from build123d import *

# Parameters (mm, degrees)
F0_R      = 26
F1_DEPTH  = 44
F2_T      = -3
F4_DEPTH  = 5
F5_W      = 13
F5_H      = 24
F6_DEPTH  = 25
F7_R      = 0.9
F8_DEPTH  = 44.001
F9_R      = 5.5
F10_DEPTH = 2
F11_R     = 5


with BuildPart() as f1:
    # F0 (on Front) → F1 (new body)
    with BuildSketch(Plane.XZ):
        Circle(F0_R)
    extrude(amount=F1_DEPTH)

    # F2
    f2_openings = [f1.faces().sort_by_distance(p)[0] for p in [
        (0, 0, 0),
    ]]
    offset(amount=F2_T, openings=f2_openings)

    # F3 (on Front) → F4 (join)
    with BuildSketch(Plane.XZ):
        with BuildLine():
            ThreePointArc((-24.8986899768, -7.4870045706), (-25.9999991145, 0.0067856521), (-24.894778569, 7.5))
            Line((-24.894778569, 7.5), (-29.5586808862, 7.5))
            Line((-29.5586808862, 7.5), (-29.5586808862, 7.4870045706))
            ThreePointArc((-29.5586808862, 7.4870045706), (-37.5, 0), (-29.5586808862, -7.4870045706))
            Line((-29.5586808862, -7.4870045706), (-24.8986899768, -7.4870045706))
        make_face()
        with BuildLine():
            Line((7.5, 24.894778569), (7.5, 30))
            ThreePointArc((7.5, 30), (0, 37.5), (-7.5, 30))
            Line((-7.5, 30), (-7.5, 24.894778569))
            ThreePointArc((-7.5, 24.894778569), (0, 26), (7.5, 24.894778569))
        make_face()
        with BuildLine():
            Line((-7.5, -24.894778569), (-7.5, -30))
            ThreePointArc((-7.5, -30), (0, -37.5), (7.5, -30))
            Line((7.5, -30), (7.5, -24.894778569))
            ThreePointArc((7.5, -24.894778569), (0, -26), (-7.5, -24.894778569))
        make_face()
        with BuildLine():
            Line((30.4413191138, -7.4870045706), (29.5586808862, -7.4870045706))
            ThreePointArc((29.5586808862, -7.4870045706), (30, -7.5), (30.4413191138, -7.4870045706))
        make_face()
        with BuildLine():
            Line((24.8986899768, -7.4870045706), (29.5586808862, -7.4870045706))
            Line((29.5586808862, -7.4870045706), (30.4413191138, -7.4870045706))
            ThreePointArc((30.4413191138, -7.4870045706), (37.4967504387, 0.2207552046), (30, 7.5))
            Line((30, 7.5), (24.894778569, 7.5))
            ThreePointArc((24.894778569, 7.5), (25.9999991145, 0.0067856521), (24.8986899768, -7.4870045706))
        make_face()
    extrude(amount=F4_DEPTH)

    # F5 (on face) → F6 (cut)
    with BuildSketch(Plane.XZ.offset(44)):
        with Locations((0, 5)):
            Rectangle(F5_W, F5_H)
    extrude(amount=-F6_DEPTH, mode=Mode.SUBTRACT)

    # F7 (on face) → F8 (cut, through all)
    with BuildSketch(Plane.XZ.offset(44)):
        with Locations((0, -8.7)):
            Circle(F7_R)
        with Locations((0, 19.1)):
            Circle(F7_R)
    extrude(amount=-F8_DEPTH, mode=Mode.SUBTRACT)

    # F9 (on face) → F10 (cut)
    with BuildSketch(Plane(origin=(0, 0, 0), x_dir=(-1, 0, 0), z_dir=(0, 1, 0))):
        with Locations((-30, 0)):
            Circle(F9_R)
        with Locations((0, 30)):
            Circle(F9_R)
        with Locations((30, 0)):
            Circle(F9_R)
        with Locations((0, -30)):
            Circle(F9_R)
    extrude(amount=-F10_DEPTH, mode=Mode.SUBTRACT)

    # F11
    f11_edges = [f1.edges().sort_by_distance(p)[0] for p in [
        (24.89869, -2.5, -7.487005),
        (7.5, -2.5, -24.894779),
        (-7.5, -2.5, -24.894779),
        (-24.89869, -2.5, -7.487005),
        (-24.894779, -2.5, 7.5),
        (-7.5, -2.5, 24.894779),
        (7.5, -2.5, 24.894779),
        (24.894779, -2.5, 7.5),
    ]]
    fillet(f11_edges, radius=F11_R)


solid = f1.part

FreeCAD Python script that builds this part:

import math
import FreeCAD as App
import Part
import Sketcher
from FreeCAD import Vector
Q = App.Units.Quantity


def edges_at(feature, points):
    """Names of the edges that pass closest to the given points."""
    edges = feature.Shape.Edges
    near = lambda p: min(range(len(edges)), key=lambda i: edges[i].distToShape(Part.Vertex(*p))[0])
    return sorted({f"Edge{near(p) + 1}" for p in points})


def faces_at(feature, points):
    """Names of the faces that lie closest to the given points."""
    faces = feature.Shape.Faces
    near = lambda p: min(range(len(faces)), key=lambda i: faces[i].distToShape(Part.Vertex(*p))[0])
    return sorted({f"Face{near(p) + 1}" for p in points})

doc = App.newDocument("Part")
body = doc.addObject("PartDesign::Body", "Body")

# Sketch on XZ plane
sketch1 = body.newObject("Sketcher::SketchObject", "Sketch")
sketch1.AttachmentSupport = (doc.getObject("XZ_Plane"), [""])
sketch1.MapMode = "FlatFace"
sketch1.addGeometry(Part.Circle(Vector(0, 0, 0), Vector(0, 0, 1), 26), False)
sketch1.addConstraint([
    Sketcher.Constraint("Coincident", 0, 3, -1, 1),
    Sketcher.Constraint("Diameter", 0, Q("52 mm")),
])
pad1 = body.newObject("PartDesign::Pad", "Pad")
pad1.Profile = sketch1
pad1.Length = 44
doc.recompute()

thickness = body.newObject("PartDesign::Thickness", "Thickness")
thickness.Base = (pad1, faces_at(pad1, [(0, 0, 0)]))
thickness.Value = 3
thickness.Reversed = True
thickness.Join = "Arc"

# Sketch on XZ plane
sketch2 = body.newObject("Sketcher::SketchObject", "Sketch001")
sketch2.AttachmentSupport = (doc.getObject("XZ_Plane"), [""])
sketch2.MapMode = "FlatFace"
sketch2.addGeometry([
    Part.ArcOfCircle(Part.Circle(Vector(0, 0, 0), Vector(0, 0, 1), 26), math.radians(163.234127), math.radians(196.735966)),  # 0
    Part.LineSegment(Vector(-24.894779, 7.5, 0), Vector(-29.558681, 7.5, 0)),  # 1
    Part.LineSegment(Vector(-29.558681, 7.5, 0), Vector(-29.558681, 7.487005, 0)),  # 2
    Part.ArcOfCircle(Part.Circle(Vector(-30, 0, 0), Vector(0, 0, 1), 7.5), math.radians(86.626622), math.radians(273.373378)),  # 3
    Part.LineSegment(Vector(-29.558681, -7.487005, 0), Vector(-24.89869, -7.487005, 0)),  # 4
    Part.LineSegment(Vector(7.5, 24.894779, 0), Vector(7.5, 30, 0)),  # 5
    Part.ArcOfCircle(Part.Circle(Vector(0, 30, 0), Vector(0, 0, 1), 7.5), math.radians(0), math.radians(180)),  # 6
    Part.LineSegment(Vector(-7.5, 30, 0), Vector(-7.5, 24.894779, 0)),  # 7
    Part.ArcOfCircle(Part.Circle(Vector(0, 0, 0), Vector(0, 0, 1), 26), math.radians(73.234127), math.radians(106.765873)),  # 8
    Part.LineSegment(Vector(-7.5, -24.894779, 0), Vector(-7.5, -30, 0)),  # 9
    Part.ArcOfCircle(Part.Circle(Vector(0, -30, 0), Vector(0, 0, 1), 7.5), math.radians(180), math.radians(360)),  # 10
    Part.LineSegment(Vector(7.5, -30, 0), Vector(7.5, -24.894779, 0)),  # 11
    Part.ArcOfCircle(Part.Circle(Vector(0, 0, 0), Vector(0, 0, 1), 26), math.radians(-106.765873), math.radians(-73.234127)),  # 12
    Part.ArcOfCircle(Part.Circle(Vector(30, 0, 0), Vector(0, 0, 1), 7.5), math.radians(-93.373378), math.radians(-86.626622)),  # 13
    Part.ArcOfCircle(Part.Circle(Vector(30, 0, 0), Vector(0, 0, 1), 7.5), math.radians(-86.626622), math.radians(90)),  # 14
    Part.LineSegment(Vector(30, 7.5, 0), Vector(24.894779, 7.5, 0)),  # 15
    Part.ArcOfCircle(Part.Circle(Vector(0, 0, 0), Vector(0, 0, 1), 26), math.radians(-16.735966), math.radians(16.765873)),  # 16
    Part.LineSegment(Vector(24.89869, -7.487005, 0), Vector(29.558681, -7.487005, 0)),  # 17
], False)
sketch2.addConstraint([
    Sketcher.Constraint("Coincident", 0, 1, 1, 1),
    Sketcher.Constraint("Coincident", 1, 2, 2, 1),
    Sketcher.Constraint("Coincident", 2, 2, 3, 1),
    Sketcher.Constraint("Coincident", 3, 2, 4, 1),
    Sketcher.Constraint("Coincident", 4, 2, 0, 2),
    Sketcher.Constraint("Tangent", 5, 2, 6, 1),
    Sketcher.Constraint("Tangent", 6, 2, 7, 1),
    Sketcher.Constraint("Coincident", 7, 2, 8, 2),
    Sketcher.Constraint("Coincident", 8, 1, 5, 1),
    Sketcher.Constraint("Tangent", 9, 2, 10, 1),
    Sketcher.Constraint("Tangent", 10, 2, 11, 1),
    Sketcher.Constraint("Coincident", 11, 2, 12, 2),
    Sketcher.Constraint("Coincident", 12, 1, 9, 1),
    Sketcher.Constraint("Tangent", 13, 2, 14, 1),
    Sketcher.Constraint("Tangent", 14, 2, 15, 1),
    Sketcher.Constraint("Coincident", 15, 2, 16, 2),
    Sketcher.Constraint("Coincident", 16, 1, 17, 1),
    Sketcher.Constraint("Coincident", 17, 2, 13, 1),
    Sketcher.Constraint("Horizontal", 1),
    Sketcher.Constraint("Vertical", 2),
    Sketcher.Constraint("Horizontal", 4),
    Sketcher.Constraint("Vertical", 5),
    Sketcher.Constraint("Vertical", 7),
    Sketcher.Constraint("Vertical", 9),
    Sketcher.Constraint("Vertical", 11),
    Sketcher.Constraint("Horizontal", 15),
    Sketcher.Constraint("Horizontal", 17),
    Sketcher.Constraint("Coincident", 0, 3, -1, 1),
    Sketcher.Constraint("Coincident", 8, 3, -1, 1),
    Sketcher.Constraint("Coincident", 12, 3, -1, 1),
    Sketcher.Constraint("Coincident", 16, 3, -1, 1),
    Sketcher.Constraint("Equal", 3, 6),
    Sketcher.Constraint("Equal", 0, 8),
    Sketcher.Constraint("Equal", 6, 10),
    Sketcher.Constraint("Equal", 8, 12),
    Sketcher.Constraint("Equal", 10, 13),
    Sketcher.Constraint("Equal", 13, 14),
    Sketcher.Constraint("Equal", 12, 16),
    Sketcher.Constraint("Symmetric", 6, 3, 10, 3, -1, 1),
    Sketcher.Constraint("Symmetric", 3, 3, 13, 3, -1, 1),
    Sketcher.Constraint("Symmetric", 3, 2, 17, 2, -2),
    Sketcher.Constraint("PointOnObject", 6, 3, -2),
    Sketcher.Constraint("Horizontal", 4, 2, 13, 2),
    Sketcher.Constraint("Horizontal", 1, 2, 14, 2),
    Sketcher.Constraint("Vertical", 2, 2, 3, 2),
    Sketcher.Constraint("Equal", 15, 5),
    Sketcher.Constraint("Radius", 0, Q("26 mm")),
    Sketcher.Constraint("Radius", 3, Q("7.5 mm")),
    Sketcher.Constraint("DistanceX", 3, 3, -1, 1, Q("30 mm")),
    Sketcher.Constraint("DistanceX", 4, 1, 4, 2, Q("4.659991 mm")),
])
pad2 = body.newObject("PartDesign::Pad", "Pad001")
pad2.Profile = sketch2
pad2.Length = 5

# Sketch on XZ plane
sketch3 = body.newObject("Sketcher::SketchObject", "Sketch002")
sketch3.AttachmentSupport = (doc.getObject("XZ_Plane"), [""])
sketch3.MapMode = "FlatFace"
sketch3.AttachmentOffset = App.Placement(Vector(0, 0, 44), App.Rotation())
sketch3.addGeometry([
    Part.LineSegment(Vector(-6.5, 17, 0), Vector(-6.5, -7, 0)),
    Part.LineSegment(Vector(-6.5, -7, 0), Vector(6.5, -7, 0)),
    Part.LineSegment(Vector(6.5, -7, 0), Vector(6.5, 17, 0)),
    Part.LineSegment(Vector(6.5, 17, 0), Vector(-6.5, 17, 0)),
], False)
sketch3.addConstraint([
    Sketcher.Constraint("Coincident", 0, 2, 1, 1),
    Sketcher.Constraint("Coincident", 1, 2, 2, 1),
    Sketcher.Constraint("Coincident", 2, 2, 3, 1),
    Sketcher.Constraint("Coincident", 3, 2, 0, 1),
    Sketcher.Constraint("Vertical", 0),
    Sketcher.Constraint("Horizontal", 1),
    Sketcher.Constraint("Vertical", 2),
    Sketcher.Constraint("Horizontal", 3),
    Sketcher.Constraint("DistanceX", 1, 1, 1, 2, Q("13 mm")),
    Sketcher.Constraint("DistanceY", 0, 2, 0, 1, Q("24 mm")),
    Sketcher.Constraint("DistanceY", 0, 2, -1, 1, Q("7 mm")),
    Sketcher.Constraint("DistanceX", 0, 2, -1, 1, Q("6.5 mm")),
])
pocket1 = body.newObject("PartDesign::Pocket", "Pocket")
pocket1.Profile = sketch3
pocket1.Length = 25

# Sketch on XZ plane
sketch4 = body.newObject("Sketcher::SketchObject", "Sketch003")
sketch4.AttachmentSupport = (doc.getObject("XZ_Plane"), [""])
sketch4.MapMode = "FlatFace"
sketch4.AttachmentOffset = App.Placement(Vector(0, 0, 44), App.Rotation())
sketch4.addGeometry([
    Part.Circle(Vector(0, -8.7, 0), Vector(0, 0, 1), 0.9),
    Part.Circle(Vector(0, 19.1, 0), Vector(0, 0, 1), 0.9),
], False)
sketch4.addConstraint([
    Sketcher.Constraint("Equal", 0, 1),
    Sketcher.Constraint("PointOnObject", 0, 3, -2),
    Sketcher.Constraint("PointOnObject", 1, 3, -2),
    Sketcher.Constraint("Diameter", 0, Q("1.8 mm")),
    Sketcher.Constraint("DistanceY", 0, 3, -1, 1, Q("8.7 mm")),
    Sketcher.Constraint("DistanceY", -1, 1, 1, 3, Q("19.1 mm")),
])
pocket2 = body.newObject("PartDesign::Pocket", "Pocket001")
pocket2.Profile = sketch4
pocket2.Type = "ThroughAll"

# Sketch on XZ plane
sketch5 = body.newObject("Sketcher::SketchObject", "Sketch004")
sketch5.AttachmentSupport = (doc.getObject("XZ_Plane"), [""])
sketch5.MapMode = "FlatFace"
sketch5.addGeometry([
    Part.Circle(Vector(30, 0, 0), Vector(0, 0, 1), 5.5),
    Part.Circle(Vector(0, 30, 0), Vector(0, 0, 1), 5.5),
    Part.Circle(Vector(-30, 0, 0), Vector(0, 0, 1), 5.5),
    Part.Circle(Vector(0, -30, 0), Vector(0, 0, 1), 5.5),
], False)
sketch5.addConstraint([
    Sketcher.Constraint("Equal", 0, 1),
    Sketcher.Constraint("Equal", 1, 2),
    Sketcher.Constraint("Equal", 2, 3),
    Sketcher.Constraint("Symmetric", 0, 3, 2, 3, -1, 1),
    Sketcher.Constraint("Symmetric", 1, 3, 3, 3, -1, 1),
    Sketcher.Constraint("PointOnObject", 0, 3, -1),
    Sketcher.Constraint("PointOnObject", 1, 3, -2),
    Sketcher.Constraint("Diameter", 0, Q("11 mm")),
    Sketcher.Constraint("DistanceX", -1, 1, 0, 3, Q("30 mm")),
    Sketcher.Constraint("DistanceY", -1, 1, 1, 3, Q("30 mm")),
])
pocket3 = body.newObject("PartDesign::Pocket", "Pocket002")
pocket3.Profile = sketch5
pocket3.Length = 2
pocket3.Reversed = True
doc.recompute()

fillet = body.newObject("PartDesign::Fillet", "Fillet")
fillet.Base = (pocket3, edges_at(pocket3, [
    (24.899, -2.5, -7.487),
    (7.5, -2.5, -24.895),
    (-7.5, -2.5, -24.895),
    (-24.899, -2.5, -7.487),
    (-24.895, -2.5, 7.5),
    (-7.5, -2.5, 24.895),
    (7.5, -2.5, 24.895),
    (24.895, -2.5, 7.5),
]))
fillet.Radius = 5

doc.recompute()
